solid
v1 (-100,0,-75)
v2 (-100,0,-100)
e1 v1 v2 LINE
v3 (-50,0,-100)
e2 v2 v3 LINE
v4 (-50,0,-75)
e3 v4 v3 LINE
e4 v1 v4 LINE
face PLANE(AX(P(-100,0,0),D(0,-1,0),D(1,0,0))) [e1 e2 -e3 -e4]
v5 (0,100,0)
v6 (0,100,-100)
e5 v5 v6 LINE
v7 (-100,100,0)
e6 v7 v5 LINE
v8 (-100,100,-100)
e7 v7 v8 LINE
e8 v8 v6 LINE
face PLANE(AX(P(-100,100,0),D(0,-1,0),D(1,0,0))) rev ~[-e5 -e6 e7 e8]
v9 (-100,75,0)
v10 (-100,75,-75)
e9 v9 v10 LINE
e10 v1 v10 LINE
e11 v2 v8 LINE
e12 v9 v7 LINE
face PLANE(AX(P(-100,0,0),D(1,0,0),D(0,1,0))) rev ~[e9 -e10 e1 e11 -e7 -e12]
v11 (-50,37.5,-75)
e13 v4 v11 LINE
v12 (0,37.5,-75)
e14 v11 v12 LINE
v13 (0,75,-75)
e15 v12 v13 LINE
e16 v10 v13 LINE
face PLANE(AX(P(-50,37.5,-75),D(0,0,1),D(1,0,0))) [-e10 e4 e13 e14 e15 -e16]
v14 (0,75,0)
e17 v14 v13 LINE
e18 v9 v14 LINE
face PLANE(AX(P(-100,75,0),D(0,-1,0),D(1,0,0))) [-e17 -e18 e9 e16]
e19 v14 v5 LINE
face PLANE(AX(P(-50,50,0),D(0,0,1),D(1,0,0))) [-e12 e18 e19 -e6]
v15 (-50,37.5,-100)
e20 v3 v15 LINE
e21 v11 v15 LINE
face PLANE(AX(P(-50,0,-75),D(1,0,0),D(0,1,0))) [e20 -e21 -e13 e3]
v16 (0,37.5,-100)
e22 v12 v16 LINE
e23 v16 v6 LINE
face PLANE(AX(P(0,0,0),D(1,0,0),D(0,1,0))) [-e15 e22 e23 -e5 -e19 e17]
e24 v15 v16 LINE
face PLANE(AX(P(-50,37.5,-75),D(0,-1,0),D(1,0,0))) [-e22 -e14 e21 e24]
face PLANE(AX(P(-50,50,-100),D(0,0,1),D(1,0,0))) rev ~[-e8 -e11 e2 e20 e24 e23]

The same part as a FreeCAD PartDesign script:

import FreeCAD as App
import Part
import Sketcher
from FreeCAD import Vector
Q = App.Units.Quantity

doc = App.newDocument("Part")
body = doc.addObject("PartDesign::Body", "Body")

sketch1 = doc.addObject("Sketcher::SketchObject", "Sketch")
body.addObject(sketch1)
sketch1.AttachmentSupport = (doc.XY_Plane, [""])
sketch1.MapMode = "FlatFace"
sketch1.addGeometry([
    Part.LineSegment(Vector(-100, 100, 0), Vector(-100, 0, 0)),
    Part.LineSegment(Vector(-100, 0, 0), Vector(0, 0, 0)),
    Part.LineSegment(Vector(0, 0, 0), Vector(0, 100, 0)),
    Part.LineSegment(Vector(0, 100, 0), Vector(-100, 100, 0)),
], False)
sketch1.addConstraint([
    Sketcher.Constraint("Coincident", 0, 2, 1, 1),
    Sketcher.Constraint("Coincident", 1, 2, 2, 1),
    Sketcher.Constraint("Coincident", 2, 2, 3, 1),
    Sketcher.Constraint("Coincident", 3, 2, 0, 1),
    Sketcher.Constraint("Vertical", 0),
    Sketcher.Constraint("Horizontal", 1),
    Sketcher.Constraint("Vertical", 2),
    Sketcher.Constraint("Horizontal", 3),
    Sketcher.Constraint("Coincident", 1, 2, -1, 1),
    Sketcher.Constraint("Equal", 3, 0),
    Sketcher.Constraint("DistanceX", 1, 1, 1, 2, Q("100 mm")),
])
pad1 = doc.addObject("PartDesign::Pad", "Pad")
body.addObject(pad1)
pad1.Profile = sketch1
pad1.Length = 100
pad1.Reversed = True

sketch2 = doc.addObject("Sketcher::SketchObject", "Sketch001")
body.addObject(sketch2)
sketch2.AttachmentSupport = (doc.XY_Plane, [""])
sketch2.MapMode = "FlatFace"
sketch2.addGeometry([
    Part.LineSegment(Vector(-100, 75, 0), Vector(-100, 0, 0)),
    Part.LineSegment(Vector(-100, 0, 0), Vector(0, 0, 0)),
    Part.LineSegment(Vector(0, 0, 0), Vector(0, 75, 0)),
    Part.LineSegment(Vector(0, 75, 0), Vector(-100, 75, 0)),
], False)
sketch2.addConstraint([
    Sketcher.Constraint("Coincident", 0, 2, 1, 1),
    Sketcher.Constraint("Coincident", 1, 2, 2, 1),
    Sketcher.Constraint("Coincident", 2, 2, 3, 1),
    Sketcher.Constraint("Coincident", 3, 2, 0, 1),
    Sketcher.Constraint("Vertical", 0),
    Sketcher.Constraint("Horizontal", 1),
    Sketcher.Constraint("Vertical", 2),
    Sketcher.Constraint("Horizontal", 3),
    Sketcher.Constraint("Coincident", 1, 2, -1, 1),
    Sketcher.Constraint("DistanceX", 1, 1, 1, 2, Q("100 mm")),
    Sketcher.Constraint("DistanceY", 0, 2, 0, 1, Q("75 mm")),
])
pocket1 = doc.addObject("PartDesign::Pocket", "Pocket")
body.addObject(pocket1)
pocket1.Profile = sketch2
pocket1.Length = 75

sketch3 = doc.addObject("Sketcher::SketchObject", "Sketch002")
body.addObject(sketch3)
sketch3.AttachmentSupport = (doc.XY_Plane, [""])
sketch3.MapMode = "FlatFace"
sketch3.AttachmentOffset = App.Placement(Vector(0, 0, -75), App.Rotation())
sketch3.addGeometry([
    Part.LineSegment(Vector(-50, 37.5, 0), Vector(-50, 0, 0)),
    Part.LineSegment(Vector(-50, 0, 0), Vector(0, 0, 0)),
    Part.LineSegment(Vector(0, 0, 0), Vector(0, 37.5, 0)),
    Part.LineSegment(Vector(0, 37.5, 0), Vector(-50, 37.5, 0)),
], False)
sketch3.addConstraint([
    Sketcher.Constraint("Coincident", 0, 2, 1, 1),
    Sketcher.Constraint("Coincident", 1, 2, 2, 1),
    Sketcher.Constraint("Coincident", 2, 2, 3, 1),
    Sketcher.Constraint("Coincident", 3, 2, 0, 1),
    Sketcher.Constraint("Vertical", 0),
    Sketcher.Constraint("Horizontal", 1),
    Sketcher.Constraint("Vertical", 2),
    Sketcher.Constraint("Horizontal", 3),
    Sketcher.Constraint("Coincident", 1, 2, -1, 1),
    Sketcher.Constraint("DistanceX", 1, 1, 1, 2, Q("50 mm")),
    Sketcher.Constraint("DistanceY", 0, 2, 0, 1, Q("37.5 mm")),
])
pocket2 = doc.addObject("PartDesign::Pocket", "Pocket001")
body.addObject(pocket2)
pocket2.Profile = sketch3
pocket2.Type = "ThroughAll"

doc.recompute()
